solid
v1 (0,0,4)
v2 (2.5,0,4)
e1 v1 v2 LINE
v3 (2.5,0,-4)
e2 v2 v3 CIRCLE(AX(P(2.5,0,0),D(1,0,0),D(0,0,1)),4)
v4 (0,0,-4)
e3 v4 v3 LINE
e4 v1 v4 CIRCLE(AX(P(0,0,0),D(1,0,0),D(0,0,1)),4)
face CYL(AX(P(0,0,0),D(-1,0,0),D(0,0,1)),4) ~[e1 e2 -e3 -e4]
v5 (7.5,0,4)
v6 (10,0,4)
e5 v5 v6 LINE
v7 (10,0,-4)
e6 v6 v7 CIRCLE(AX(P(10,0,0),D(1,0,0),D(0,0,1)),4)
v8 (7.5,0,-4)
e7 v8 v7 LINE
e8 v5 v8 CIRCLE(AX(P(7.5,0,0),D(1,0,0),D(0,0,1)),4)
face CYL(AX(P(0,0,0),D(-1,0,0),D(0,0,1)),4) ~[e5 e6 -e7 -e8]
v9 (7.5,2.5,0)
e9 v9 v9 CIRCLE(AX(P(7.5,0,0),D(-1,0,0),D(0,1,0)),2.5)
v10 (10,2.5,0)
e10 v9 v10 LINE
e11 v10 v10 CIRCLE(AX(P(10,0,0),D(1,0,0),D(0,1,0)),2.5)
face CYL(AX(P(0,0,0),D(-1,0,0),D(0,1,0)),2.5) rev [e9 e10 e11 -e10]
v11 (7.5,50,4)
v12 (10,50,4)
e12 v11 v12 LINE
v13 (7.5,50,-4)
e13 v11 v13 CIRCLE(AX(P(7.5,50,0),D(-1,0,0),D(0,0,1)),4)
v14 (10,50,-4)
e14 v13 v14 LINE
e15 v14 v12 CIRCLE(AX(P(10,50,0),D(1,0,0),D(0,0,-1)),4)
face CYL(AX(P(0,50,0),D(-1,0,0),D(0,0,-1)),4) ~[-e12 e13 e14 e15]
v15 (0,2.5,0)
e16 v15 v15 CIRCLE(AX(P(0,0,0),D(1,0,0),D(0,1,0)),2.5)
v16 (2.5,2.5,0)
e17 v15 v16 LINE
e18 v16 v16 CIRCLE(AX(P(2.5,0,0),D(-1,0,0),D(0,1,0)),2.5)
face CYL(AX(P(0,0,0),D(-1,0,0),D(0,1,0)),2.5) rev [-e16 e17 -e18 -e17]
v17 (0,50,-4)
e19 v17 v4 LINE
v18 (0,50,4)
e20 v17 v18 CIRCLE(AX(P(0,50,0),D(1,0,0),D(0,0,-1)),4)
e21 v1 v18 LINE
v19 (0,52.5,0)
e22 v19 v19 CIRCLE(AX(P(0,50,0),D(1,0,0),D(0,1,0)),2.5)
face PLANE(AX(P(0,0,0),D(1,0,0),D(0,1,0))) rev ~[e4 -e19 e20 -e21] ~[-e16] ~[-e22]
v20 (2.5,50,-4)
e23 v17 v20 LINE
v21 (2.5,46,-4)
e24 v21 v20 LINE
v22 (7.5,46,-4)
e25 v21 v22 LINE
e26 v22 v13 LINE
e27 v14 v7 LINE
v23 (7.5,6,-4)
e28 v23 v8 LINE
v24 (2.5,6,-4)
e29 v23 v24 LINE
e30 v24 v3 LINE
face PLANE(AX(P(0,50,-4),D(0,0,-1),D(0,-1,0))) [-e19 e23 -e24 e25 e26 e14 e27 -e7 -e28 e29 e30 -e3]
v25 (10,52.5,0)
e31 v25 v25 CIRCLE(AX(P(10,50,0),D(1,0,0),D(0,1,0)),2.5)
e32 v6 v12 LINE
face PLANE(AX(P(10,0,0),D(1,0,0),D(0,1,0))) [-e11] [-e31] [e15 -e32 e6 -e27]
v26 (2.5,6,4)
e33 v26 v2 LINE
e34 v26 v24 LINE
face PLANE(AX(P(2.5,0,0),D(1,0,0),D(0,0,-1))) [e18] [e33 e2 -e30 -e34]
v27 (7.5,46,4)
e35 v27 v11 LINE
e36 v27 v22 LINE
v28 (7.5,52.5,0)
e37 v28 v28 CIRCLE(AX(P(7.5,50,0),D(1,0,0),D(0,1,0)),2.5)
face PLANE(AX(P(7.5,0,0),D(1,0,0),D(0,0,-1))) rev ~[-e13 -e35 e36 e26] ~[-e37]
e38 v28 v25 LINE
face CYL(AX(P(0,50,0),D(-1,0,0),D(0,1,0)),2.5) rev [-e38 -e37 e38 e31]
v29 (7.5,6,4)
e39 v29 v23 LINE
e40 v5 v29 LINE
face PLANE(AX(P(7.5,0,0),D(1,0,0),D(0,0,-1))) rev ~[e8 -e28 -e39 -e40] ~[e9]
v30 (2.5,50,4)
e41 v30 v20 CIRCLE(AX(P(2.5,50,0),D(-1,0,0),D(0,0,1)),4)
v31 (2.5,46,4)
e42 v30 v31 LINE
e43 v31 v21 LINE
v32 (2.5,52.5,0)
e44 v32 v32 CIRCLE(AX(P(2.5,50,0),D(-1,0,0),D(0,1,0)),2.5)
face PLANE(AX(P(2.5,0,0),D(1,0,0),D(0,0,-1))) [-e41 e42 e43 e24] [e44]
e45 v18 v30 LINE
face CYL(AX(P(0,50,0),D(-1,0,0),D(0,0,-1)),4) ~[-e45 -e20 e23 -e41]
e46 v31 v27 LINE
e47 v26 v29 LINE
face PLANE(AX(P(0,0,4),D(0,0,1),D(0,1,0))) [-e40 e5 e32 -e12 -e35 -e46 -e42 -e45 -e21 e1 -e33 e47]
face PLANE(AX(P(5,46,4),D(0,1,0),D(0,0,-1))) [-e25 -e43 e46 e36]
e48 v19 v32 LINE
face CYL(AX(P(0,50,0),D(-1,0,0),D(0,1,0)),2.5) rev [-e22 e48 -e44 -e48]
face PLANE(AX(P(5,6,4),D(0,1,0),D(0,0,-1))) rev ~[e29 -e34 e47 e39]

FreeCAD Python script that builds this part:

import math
import FreeCAD as App
import Part
import Sketcher
from FreeCAD import Vector
Q = App.Units.Quantity


def add_polygon(sketch, points):
    """Adds a closed chain of lines whose ends are joined by coincident constraints."""
    first, n = sketch.GeometryCount, len(points)
    for a, b in zip(points, points[1:] + points[:1]):
        sketch.addGeometry(Part.LineSegment(App.Vector(*a, 0), App.Vector(*b, 0)), False)
    for i in range(n):
        sketch.addConstraint(Sketcher.Constraint("Coincident", first + i, 2, first + (i + 1) % n, 1))

doc = App.newDocument("Part")
params = doc.addObject("Spreadsheet::Sheet", "Params")
for row, (alias, value) in enumerate([
    ("sketch1_diameter", "5 mm"),
    ("sketch1_radius", "4 mm"),
    ("sketch1_width", "50 mm"),
    ("pad1_length", "10 mm"),
    ("sketch2_width", "8 mm"),
    ("sketch2_width2", "10 mm"),
    ("sketch2_diameter", "5 mm"),
    ("pocket1_length", "5 mm"),
], start=1):
    params.set(f"A{row}", alias)
    params.set(f"B{row}", "=" + value)
    params.setAlias(f"B{row}", alias)

body = doc.addObject("PartDesign::Body", "Body")

sketch1 = body.newObject("Sketcher::SketchObject", "Sketch")
sketch1.AttachmentSupport = (doc.getObject("YZ_Plane"), [""])
sketch1.MapMode = "FlatFace"
sketch1.addGeometry(Part.LineSegment(Vector(50, 4, 0), Vector(0, 4, 0)), False)
sketch1.addGeometry(Part.ArcOfCircle(Part.Circle(Vector(0, 0, 0), Vector(0, 0, 1), 4), math.radians(90), math.radians(270)), False)
sketch1.addGeometry(Part.LineSegment(Vector(0, -4, 0), Vector(50, -4, 0)), False)
sketch1.addGeometry(Part.ArcOfCircle(Part.Circle(Vector(50, 0, 0), Vector(0, 0, 1), 4), math.radians(-90), math.radians(90)), False)
sketch1.addGeometry(Part.Circle(Vector(0, 0, 0), Vector(0, 0, 1), 2.5), False)
sketch1.addGeometry(Part.Circle(Vector(50, 0, 0), Vector(0, 0, 1), 2.5), False)
sketch1.addConstraint(Sketcher.Constraint("Tangent", 0, 2, 1, 1))
sketch1.addConstraint(Sketcher.Constraint("Tangent", 1, 2, 2, 1))
sketch1.addConstraint(Sketcher.Constraint("Tangent", 2, 2, 3, 1))
sketch1.addConstraint(Sketcher.Constraint("Tangent", 3, 2, 0, 1))
sketch1.addConstraint(Sketcher.Constraint("Horizontal", 0))
sketch1.addConstraint(Sketcher.Constraint("Horizontal", 2))
sketch1.addConstraint(Sketcher.Constraint("Coincident", 1, 3, -1, 1))
sketch1.addConstraint(Sketcher.Constraint("Coincident", 4, 3, -1, 1))
sketch1.addConstraint(Sketcher.Constraint("Coincident", 5, 3, 3, 3))
sketch1.addConstraint(Sketcher.Constraint("Equal", 4, 5))
sketch1.addConstraint(Sketcher.Constraint("Diameter", 4, Q("5 mm")))
sketch1.addConstraint(Sketcher.Constraint("Radius", 1, Q("4 mm")))
sketch1.addConstraint(Sketcher.Constraint("DistanceX", 0, 2, 0, 1, Q("50 mm")))
sketch1.setExpression("Constraints[10]", "Params.sketch1_diameter")
sketch1.setExpression("Constraints[11]", "Params.sketch1_radius")
sketch1.setExpression("Constraints[12]", "Params.sketch1_width")
pad1 = body.newObject("PartDesign::Pad", "Pad")
pad1.Profile = sketch1
pad1.setExpression("Length", "Params.pad1_length")

sketch2 = body.newObject("Sketcher::SketchObject", "Sketch001")
sketch2.AttachmentSupport = (doc.getObject("YZ_Plane"), [""])
sketch2.MapMode = "FlatFace"
sketch2.AttachmentOffset = App.Placement(Vector(0, 0, 5), App.Rotation())
add_polygon(sketch2, [(54, 4), (46, 4), (46, -4), (54, -4)])
sketch2.addGeometry(Part.Circle(Vector(50, 0, 0), Vector(0, 0, 1), 2.5), False)
add_polygon(sketch2, [(6, -4), (6, 4), (-4, 4), (-4, -4)])
sketch2.addConstraint(Sketcher.Constraint("Horizontal", 0))
sketch2.addConstraint(Sketcher.Constraint("Vertical", 1))
sketch2.addConstraint(Sketcher.Constraint("Horizontal", 2))
sketch2.addConstraint(Sketcher.Constraint("Vertical", 3))
sketch2.addConstraint(Sketcher.Constraint("Vertical", 5))
sketch2.addConstraint(Sketcher.Constraint("Horizontal", 6))
sketch2.addConstraint(Sketcher.Constraint("Vertical", 7))
sketch2.addConstraint(Sketcher.Constraint("Horizontal", 8))
sketch2.addConstraint(Sketcher.Constraint("PointOnObject", 4, 3, -1))
sketch2.addConstraint(Sketcher.Constraint("Horizontal", 3, 2, 5, 2))
sketch2.addConstraint(Sketcher.Constraint("Horizontal", 2, 2, 7, 2))
sketch2.addConstraint(Sketcher.Constraint("Equal", 2, 1))
sketch2.addConstraint(Sketcher.Constraint("DistanceX", 0, 2, 0, 1, Q("8 mm")))
sketch2.addConstraint(Sketcher.Constraint("DistanceX", 6, 2, 6, 1, Q("10 mm")))
sketch2.addConstraint(Sketcher.Constraint("Diameter", 4, Q("5 mm")))
sketch2.addConstraint(Sketcher.Constraint("DistanceY", -1, 1, 0, 2, Q("4 mm")))
sketch2.addConstraint(Sketcher.Constraint("DistanceX", 6, 2, -1, 1, Q("4 mm")))
sketch2.addConstraint(Sketcher.Constraint("DistanceX", 0, 2, 4, 3, Q("4 mm")))
sketch2.addConstraint(Sketcher.Constraint("DistanceX", -1, 1, 4, 3, Q("50 mm")))
sketch2.setExpression("Constraints[20]", "Params.sketch2_width")
sketch2.setExpression("Constraints[21]", "Params.sketch2_width2")
sketch2.setExpression("Constraints[22]", "Params.sketch2_diameter")
pocket1 = body.newObject("PartDesign::Pocket", "Pocket")
pocket1.Profile = sketch2
pocket1.setExpression("Length", "Params.pocket1_length")
pocket1.Midplane = True

doc.recompute()
